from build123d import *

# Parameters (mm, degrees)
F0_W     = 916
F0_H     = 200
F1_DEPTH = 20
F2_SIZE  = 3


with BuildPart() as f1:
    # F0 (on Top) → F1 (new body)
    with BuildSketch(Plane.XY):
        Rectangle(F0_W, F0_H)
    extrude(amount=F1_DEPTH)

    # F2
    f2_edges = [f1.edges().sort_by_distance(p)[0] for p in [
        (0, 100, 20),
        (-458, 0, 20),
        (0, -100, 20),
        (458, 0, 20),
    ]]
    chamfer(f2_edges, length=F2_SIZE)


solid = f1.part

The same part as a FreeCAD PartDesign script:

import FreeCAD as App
import Part
import Sketcher

V = App.Vector


def edges_at(feature, points):
    """Names of the edges that pass closest to the given points."""
    edges = feature.Shape.Edges
    near = lambda p: min(range(len(edges)), key=lambda i: edges[i].distToShape(Part.Vertex(*p))[0])
    return sorted({f"Edge{near(p) + 1}" for p in points})


def add_polygon(sketch, points):
    """Adds a closed chain of lines whose ends are joined by coincident constraints."""
    first, n = sketch.GeometryCount, len(points)
    for a, b in zip(points, points[1:] + points[:1]):
        sketch.addGeometry(Part.LineSegment(App.Vector(*a, 0), App.Vector(*b, 0)), False)
    for i in range(n):
        sketch.addConstraint(Sketcher.Constraint("Coincident", first + i, 2, first + (i + 1) % n, 1))

doc = App.newDocument("Part")
params = doc.addObject("Spreadsheet::Sheet", "Params")
for row, (alias, value) in enumerate([
    ("sketch1_width", "916 mm"),
    ("sketch1_height", "200 mm"),
    ("pad1_length", "20 mm"),
    ("chamfer_size", "3 mm"),
], start=1):
    params.set(f"A{row}", alias)
    params.set(f"B{row}", "=" + value)
    params.setAlias(f"B{row}", alias)

body = doc.addObject("PartDesign::Body", "Body")

# Sketch on XY plane
sketch1 = body.newObject("Sketcher::SketchObject", "Sketch")
sketch1.AttachmentSupport = (doc.getObject("XY_Plane"), [""])
sketch1.MapMode = "FlatFace"
add_polygon(sketch1, [(-458, 100), (-458, -100), (458, -100), (458, 100)])  # lines 0-3
sketch1.addConstraint([
    Sketcher.Constraint("Vertical", 0),
    Sketcher.Constraint("Horizontal", 1),
    Sketcher.Constraint("Vertical", 2),
    Sketcher.Constraint("Horizontal", 3),
    Sketcher.Constraint("Symmetric", 0, 2, 2, 2, -1, 1),
    Sketcher.Constraint("DistanceX", 1, 1, 1, 2, 916.0),
    Sketcher.Constraint("DistanceY", 0, 2, 0, 1, 200.0),
])
sketch1.setExpression("Constraints[9]", "Params.sketch1_width")
sketch1.setExpression("Constraints[10]", "Params.sketch1_height")
pad1 = body.newObject("PartDesign::Pad", "Pad")
pad1.Profile = sketch1
pad1.setExpression("Length", "Params.pad1_length")
doc.recompute()

chamfer = body.newObject("PartDesign::Chamfer", "Chamfer")
chamfer.Base = (pad1, edges_at(pad1, [
    (0, 100, 20),
    (-458, 0, 20),
    (0, -100, 20),
    (458, 0, 20),
]))
chamfer.setExpression("Size", "Params.chamfer_size")

doc.recompute()
